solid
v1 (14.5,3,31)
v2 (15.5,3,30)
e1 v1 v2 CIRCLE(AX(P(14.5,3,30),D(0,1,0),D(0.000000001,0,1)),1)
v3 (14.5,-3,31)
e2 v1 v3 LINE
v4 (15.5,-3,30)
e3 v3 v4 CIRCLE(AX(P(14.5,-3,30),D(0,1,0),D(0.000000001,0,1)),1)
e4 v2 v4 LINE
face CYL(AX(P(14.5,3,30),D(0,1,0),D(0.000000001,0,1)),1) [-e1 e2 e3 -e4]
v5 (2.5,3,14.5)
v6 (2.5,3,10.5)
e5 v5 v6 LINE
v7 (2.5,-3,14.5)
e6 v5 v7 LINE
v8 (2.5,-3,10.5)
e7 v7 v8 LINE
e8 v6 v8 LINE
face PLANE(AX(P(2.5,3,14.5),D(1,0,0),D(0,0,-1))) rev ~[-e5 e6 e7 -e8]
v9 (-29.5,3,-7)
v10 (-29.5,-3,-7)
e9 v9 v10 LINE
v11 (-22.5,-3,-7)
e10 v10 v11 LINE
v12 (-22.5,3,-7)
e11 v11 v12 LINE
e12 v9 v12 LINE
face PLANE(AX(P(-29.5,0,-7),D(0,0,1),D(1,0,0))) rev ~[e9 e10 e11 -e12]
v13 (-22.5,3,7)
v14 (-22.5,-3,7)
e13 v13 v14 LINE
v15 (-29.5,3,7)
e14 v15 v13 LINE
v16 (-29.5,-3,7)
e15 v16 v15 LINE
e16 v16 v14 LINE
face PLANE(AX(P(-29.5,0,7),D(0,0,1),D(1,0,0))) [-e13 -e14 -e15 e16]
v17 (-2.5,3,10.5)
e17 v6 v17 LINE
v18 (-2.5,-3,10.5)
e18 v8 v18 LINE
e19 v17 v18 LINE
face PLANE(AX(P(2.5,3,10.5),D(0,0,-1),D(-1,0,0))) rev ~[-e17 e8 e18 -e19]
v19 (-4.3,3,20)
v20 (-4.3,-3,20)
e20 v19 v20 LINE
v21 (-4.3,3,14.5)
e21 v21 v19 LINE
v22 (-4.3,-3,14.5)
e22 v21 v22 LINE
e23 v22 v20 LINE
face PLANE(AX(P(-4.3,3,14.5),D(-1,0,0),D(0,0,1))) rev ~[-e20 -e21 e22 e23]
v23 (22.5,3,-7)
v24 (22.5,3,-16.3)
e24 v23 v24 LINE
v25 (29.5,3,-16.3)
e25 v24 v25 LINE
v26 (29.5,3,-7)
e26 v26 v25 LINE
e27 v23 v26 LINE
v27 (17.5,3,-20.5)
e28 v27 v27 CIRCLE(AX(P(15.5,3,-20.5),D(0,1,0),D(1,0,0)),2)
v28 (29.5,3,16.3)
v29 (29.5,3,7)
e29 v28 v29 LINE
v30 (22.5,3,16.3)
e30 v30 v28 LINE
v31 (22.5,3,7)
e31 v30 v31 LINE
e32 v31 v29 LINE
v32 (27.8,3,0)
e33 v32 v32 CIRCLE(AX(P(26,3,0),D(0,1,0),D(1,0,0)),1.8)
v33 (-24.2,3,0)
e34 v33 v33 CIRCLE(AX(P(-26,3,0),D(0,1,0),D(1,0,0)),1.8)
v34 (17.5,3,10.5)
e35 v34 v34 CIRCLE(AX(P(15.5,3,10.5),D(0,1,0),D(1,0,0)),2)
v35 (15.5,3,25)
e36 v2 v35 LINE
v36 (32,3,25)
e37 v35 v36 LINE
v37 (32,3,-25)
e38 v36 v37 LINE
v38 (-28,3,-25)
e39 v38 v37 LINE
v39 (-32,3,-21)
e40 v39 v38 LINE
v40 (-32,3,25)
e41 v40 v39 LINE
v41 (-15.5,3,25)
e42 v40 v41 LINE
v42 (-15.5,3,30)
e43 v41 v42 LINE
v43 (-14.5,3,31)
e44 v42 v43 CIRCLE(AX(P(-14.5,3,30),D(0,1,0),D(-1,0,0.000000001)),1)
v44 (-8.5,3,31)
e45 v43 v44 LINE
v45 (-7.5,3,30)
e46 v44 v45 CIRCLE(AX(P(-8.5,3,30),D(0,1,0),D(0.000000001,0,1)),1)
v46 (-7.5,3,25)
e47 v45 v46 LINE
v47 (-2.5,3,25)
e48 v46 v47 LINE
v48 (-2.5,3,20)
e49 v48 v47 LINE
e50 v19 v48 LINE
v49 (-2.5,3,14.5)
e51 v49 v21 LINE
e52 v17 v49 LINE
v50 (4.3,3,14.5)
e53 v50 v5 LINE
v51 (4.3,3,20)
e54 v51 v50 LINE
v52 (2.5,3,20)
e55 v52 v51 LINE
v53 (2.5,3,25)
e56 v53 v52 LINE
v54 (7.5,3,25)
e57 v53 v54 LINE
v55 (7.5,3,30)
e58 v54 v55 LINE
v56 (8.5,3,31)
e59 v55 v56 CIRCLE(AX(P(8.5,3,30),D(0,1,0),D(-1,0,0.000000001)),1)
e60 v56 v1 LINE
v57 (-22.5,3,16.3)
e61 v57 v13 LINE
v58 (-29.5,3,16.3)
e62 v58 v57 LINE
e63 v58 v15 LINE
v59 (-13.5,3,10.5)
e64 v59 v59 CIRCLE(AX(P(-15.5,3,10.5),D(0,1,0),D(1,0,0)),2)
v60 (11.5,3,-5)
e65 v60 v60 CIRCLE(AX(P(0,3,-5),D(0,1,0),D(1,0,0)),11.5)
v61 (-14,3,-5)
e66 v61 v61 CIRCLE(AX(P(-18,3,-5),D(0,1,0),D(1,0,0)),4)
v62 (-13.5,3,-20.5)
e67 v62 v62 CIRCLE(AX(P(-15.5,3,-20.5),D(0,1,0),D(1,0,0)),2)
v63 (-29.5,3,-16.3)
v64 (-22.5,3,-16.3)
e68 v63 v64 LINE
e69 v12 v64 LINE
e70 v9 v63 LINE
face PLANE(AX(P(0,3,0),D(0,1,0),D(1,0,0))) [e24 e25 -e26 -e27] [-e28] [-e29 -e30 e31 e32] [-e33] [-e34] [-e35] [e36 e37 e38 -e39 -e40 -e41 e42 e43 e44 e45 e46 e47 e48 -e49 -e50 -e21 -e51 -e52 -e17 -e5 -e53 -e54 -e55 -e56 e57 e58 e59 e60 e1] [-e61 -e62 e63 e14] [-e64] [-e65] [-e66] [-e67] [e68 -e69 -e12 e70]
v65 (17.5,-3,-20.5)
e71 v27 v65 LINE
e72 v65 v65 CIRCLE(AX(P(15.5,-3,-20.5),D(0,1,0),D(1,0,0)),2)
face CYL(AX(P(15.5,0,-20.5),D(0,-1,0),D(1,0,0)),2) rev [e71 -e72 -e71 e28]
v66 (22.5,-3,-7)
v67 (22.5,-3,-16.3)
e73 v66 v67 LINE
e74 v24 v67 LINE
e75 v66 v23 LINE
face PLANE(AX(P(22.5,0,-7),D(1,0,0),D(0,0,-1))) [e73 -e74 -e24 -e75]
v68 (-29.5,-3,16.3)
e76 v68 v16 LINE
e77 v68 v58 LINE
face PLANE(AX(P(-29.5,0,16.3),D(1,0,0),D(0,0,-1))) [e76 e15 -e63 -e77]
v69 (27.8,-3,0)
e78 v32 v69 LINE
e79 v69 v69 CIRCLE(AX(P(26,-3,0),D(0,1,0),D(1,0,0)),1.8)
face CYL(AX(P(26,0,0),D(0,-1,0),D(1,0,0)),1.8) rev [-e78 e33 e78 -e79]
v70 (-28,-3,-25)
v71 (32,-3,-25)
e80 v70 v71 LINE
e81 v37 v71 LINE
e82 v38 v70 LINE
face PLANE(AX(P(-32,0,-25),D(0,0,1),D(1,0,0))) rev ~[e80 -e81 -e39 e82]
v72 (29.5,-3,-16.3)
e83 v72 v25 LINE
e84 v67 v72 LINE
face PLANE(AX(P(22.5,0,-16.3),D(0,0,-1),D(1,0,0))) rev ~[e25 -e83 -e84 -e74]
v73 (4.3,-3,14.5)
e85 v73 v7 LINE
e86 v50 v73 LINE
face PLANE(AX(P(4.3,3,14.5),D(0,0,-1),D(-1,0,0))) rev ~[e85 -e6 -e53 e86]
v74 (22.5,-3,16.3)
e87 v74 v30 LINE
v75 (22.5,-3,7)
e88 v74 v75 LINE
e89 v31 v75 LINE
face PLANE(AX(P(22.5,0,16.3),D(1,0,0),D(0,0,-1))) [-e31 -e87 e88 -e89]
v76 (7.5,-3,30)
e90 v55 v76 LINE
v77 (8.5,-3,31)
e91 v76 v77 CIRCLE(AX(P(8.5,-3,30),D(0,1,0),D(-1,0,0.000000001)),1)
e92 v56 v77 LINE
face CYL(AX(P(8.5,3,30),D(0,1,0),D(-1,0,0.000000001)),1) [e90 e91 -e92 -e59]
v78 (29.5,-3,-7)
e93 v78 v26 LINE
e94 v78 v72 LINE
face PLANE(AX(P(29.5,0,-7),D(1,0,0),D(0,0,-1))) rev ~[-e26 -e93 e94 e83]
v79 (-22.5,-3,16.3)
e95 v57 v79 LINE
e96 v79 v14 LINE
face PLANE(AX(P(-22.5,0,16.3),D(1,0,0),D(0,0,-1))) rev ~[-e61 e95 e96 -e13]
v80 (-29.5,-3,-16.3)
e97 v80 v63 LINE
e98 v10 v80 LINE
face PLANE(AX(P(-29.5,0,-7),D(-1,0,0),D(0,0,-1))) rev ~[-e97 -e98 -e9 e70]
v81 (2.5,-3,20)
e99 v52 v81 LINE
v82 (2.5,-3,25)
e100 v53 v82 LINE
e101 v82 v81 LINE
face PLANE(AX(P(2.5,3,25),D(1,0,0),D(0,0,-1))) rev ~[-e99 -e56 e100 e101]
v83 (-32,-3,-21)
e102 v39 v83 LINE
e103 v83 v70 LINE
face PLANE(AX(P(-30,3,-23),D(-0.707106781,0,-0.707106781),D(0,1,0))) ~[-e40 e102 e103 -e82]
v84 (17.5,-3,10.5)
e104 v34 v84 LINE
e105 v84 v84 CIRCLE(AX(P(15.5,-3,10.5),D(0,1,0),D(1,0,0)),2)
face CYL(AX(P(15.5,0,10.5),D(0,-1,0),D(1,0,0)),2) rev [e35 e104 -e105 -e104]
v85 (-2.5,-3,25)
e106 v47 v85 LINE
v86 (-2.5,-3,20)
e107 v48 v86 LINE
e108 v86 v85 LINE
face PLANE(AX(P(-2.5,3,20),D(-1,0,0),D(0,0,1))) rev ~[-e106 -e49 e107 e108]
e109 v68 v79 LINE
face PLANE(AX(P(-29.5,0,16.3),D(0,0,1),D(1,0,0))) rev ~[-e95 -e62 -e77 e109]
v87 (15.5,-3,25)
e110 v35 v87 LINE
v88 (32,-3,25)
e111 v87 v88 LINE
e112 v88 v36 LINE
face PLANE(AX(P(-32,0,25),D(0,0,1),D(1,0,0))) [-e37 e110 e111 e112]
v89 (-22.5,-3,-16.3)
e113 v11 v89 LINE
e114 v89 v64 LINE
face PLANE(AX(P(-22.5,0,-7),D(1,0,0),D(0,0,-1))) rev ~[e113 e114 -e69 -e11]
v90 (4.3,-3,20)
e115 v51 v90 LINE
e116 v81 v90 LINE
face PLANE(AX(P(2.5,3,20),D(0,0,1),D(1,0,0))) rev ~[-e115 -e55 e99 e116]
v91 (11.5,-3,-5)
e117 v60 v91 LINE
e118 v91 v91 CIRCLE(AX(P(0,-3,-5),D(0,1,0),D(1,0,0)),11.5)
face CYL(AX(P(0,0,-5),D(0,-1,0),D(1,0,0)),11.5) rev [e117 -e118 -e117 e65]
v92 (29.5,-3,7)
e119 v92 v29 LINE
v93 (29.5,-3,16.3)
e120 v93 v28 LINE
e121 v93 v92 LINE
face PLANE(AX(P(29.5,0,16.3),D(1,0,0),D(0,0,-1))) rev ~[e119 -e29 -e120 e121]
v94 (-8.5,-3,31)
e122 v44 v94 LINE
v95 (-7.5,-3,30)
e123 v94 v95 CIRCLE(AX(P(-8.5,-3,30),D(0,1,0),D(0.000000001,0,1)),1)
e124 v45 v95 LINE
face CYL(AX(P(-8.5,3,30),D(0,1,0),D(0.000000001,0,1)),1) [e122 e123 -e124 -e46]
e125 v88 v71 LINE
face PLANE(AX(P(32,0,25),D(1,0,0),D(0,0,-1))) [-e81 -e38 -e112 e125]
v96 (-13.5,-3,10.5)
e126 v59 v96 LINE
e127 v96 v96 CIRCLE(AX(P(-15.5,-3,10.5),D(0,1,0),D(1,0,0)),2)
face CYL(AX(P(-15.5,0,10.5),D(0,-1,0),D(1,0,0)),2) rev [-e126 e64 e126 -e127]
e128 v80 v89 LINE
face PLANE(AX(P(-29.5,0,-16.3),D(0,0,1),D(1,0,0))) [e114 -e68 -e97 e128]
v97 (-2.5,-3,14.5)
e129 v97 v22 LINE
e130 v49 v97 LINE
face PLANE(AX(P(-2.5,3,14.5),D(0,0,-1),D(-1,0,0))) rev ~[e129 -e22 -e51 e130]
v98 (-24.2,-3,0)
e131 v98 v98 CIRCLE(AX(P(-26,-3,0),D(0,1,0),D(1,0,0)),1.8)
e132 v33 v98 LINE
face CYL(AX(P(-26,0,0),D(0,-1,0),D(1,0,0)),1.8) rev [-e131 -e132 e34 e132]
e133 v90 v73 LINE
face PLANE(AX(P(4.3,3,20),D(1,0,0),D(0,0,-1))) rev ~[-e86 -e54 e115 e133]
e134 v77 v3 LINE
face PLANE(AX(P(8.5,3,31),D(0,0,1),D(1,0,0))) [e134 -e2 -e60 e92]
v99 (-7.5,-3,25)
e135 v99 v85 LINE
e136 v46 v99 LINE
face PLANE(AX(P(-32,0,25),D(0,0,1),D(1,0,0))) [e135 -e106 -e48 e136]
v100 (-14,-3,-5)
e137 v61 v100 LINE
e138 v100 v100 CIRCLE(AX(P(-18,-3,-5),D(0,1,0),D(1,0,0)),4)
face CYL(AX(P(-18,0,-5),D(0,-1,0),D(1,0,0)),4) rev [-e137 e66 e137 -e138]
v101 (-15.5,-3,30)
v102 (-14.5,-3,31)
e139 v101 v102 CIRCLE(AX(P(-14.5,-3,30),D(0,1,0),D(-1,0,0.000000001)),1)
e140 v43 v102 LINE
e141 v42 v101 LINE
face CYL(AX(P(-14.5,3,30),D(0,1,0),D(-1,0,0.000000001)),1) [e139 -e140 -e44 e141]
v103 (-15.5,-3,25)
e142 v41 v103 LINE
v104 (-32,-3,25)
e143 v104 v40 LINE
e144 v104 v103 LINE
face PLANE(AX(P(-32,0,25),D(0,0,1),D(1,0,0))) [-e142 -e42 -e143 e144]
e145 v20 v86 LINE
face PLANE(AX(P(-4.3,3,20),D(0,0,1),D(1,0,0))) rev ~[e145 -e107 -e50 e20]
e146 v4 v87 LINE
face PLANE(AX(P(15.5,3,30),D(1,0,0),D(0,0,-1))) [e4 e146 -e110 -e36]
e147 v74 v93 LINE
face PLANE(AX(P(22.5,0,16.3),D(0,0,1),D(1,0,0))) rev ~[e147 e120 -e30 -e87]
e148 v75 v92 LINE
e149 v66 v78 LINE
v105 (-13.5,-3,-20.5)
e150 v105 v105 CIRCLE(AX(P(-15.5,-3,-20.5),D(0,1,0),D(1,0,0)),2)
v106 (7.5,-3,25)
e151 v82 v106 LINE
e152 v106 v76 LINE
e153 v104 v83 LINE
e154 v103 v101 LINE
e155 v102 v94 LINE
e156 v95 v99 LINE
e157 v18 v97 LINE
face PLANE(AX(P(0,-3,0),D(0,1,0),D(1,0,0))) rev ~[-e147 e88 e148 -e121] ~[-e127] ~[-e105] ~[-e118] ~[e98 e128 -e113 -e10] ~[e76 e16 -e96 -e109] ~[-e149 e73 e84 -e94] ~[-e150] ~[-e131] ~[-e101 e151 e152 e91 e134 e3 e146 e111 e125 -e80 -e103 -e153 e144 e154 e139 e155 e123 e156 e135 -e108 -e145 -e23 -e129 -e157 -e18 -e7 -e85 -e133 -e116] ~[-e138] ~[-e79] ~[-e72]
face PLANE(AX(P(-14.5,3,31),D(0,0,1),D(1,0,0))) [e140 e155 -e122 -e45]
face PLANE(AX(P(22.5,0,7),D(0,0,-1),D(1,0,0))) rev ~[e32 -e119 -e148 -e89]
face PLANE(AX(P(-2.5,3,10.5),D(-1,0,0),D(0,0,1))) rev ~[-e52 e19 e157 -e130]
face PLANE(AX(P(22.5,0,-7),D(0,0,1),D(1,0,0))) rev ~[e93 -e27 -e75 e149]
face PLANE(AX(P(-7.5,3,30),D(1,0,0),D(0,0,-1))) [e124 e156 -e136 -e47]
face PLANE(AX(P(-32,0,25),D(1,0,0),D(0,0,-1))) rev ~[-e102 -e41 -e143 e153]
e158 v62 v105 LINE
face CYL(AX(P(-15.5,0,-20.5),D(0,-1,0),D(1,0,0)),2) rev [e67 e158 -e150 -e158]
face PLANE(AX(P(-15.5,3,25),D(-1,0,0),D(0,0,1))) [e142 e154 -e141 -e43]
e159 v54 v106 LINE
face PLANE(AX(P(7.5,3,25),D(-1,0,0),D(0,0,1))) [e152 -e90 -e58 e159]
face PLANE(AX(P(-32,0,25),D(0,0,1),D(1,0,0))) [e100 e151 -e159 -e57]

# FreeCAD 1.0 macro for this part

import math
import FreeCAD as App
import Part
import Sketcher
from FreeCAD import Vector


def edges_at(feature, points):
    """Names of the edges that pass closest to the given points."""
    edges = feature.Shape.Edges
    near = lambda p: min(range(len(edges)), key=lambda i: edges[i].distToShape(Part.Vertex(*p))[0])
    return sorted({f"Edge{near(p) + 1}" for p in points})


def add_polygon(sketch, points):
    """Adds a closed chain of lines whose ends are joined by coincident constraints."""
    first, n = sketch.GeometryCount, len(points)
    for a, b in zip(points, points[1:] + points[:1]):
        sketch.addGeometry(Part.LineSegment(App.Vector(*a, 0), App.Vector(*b, 0)), False)
    for i in range(n):
        sketch.addConstraint(Sketcher.Constraint("Coincident", first + i, 2, first + (i + 1) % n, 1))

doc = App.newDocument("Part")
body = doc.addObject("PartDesign::Body", "Body")

sketch1 = body.newObject("Sketcher::SketchObject", "Sketch")
sketch1.AttachmentSupport = (doc.getObject("XZ_Plane"), [""])
sketch1.MapMode = "FlatFace"
add_polygon(sketch1, [(-32, -25), (-32, 25), (32, 25), (32, -25)])
add_polygon(sketch1, [(-22.5, 16.3), (-29.5, 16.3), (-29.5, 7), (-22.5, 7)])
sketch1.addGeometry(Part.Circle(Vector(-15.5, 10.5, 0), Vector(0, 0, 1), 2), False)
sketch1.addGeometry(Part.Circle(Vector(-26, 0, 0), Vector(0, 0, 1), 1.8), False)
add_polygon(sketch1, [(29.5, 16.3), (22.5, 16.3), (22.5, 7), (29.5, 7)])
sketch1.addGeometry(Part.Circle(Vector(15.5, 10.5, 0), Vector(0, 0, 1), 2), False)
sketch1.addGeometry(Part.Circle(Vector(26, 0, 0), Vector(0, 0, 1), 1.8), False)
sketch1.addGeometry(Part.Circle(Vector(-18, -5, 0), Vector(0, 0, 1), 4), False)
add_polygon(sketch1, [(-22.5, -7), (-29.5, -7), (-29.5, -16.3), (-22.5, -16.3)])
sketch1.addGeometry(Part.Circle(Vector(-15.5, -20.5, 0), Vector(0, 0, 1), 2), False)
sketch1.addGeometry(Part.Circle(Vector(0, -5, 0), Vector(0, 0, 1), 11.5), False)
add_polygon(sketch1, [(29.5, -7), (22.5, -7), (22.5, -16.3), (29.5, -16.3)])
sketch1.addGeometry(Part.Circle(Vector(15.5, -20.5, 0), Vector(0, 0, 1), 2), False)
sketch1.addConstraint([
    Sketcher.Constraint("Vertical", 0),
    Sketcher.Constraint("Horizontal", 1),
    Sketcher.Constraint("Vertical", 2),
    Sketcher.Constraint("Horizontal", 3),
    Sketcher.Constraint("Horizontal", 4),
    Sketcher.Constraint("Vertical", 5),
    Sketcher.Constraint("Horizontal", 6),
    Sketcher.Constraint("Vertical", 7),
    Sketcher.Constraint("Horizontal", 10),
    Sketcher.Constraint("Vertical", 11),
    Sketcher.Constraint("Horizontal", 12),
    Sketcher.Constraint("Vertical", 13),
    Sketcher.Constraint("Horizontal", 17),
    Sketcher.Constraint("Vertical", 18),
    Sketcher.Constraint("Horizontal", 19),
    Sketcher.Constraint("Vertical", 20),
    Sketcher.Constraint("Horizontal", 23),
    Sketcher.Constraint("Vertical", 24),
    Sketcher.Constraint("Horizontal", 25),
    Sketcher.Constraint("Vertical", 26),
    Sketcher.Constraint("Equal", 8, 14),
    Sketcher.Constraint("Equal", 9, 15),
    Sketcher.Constraint("Equal", 14, 21),
    Sketcher.Constraint("Equal", 21, 27),
    Sketcher.Constraint("Symmetric", 9, 3, 15, 3, -1, 1),
    Sketcher.Constraint("Symmetric", 0, 2, 2, 2, -1, 1),
    Sketcher.Constraint("Symmetric", 12, 2, 17, 2, -1, 1),
    Sketcher.Constraint("Symmetric", 10, 2, 19, 2, -1, 1),
    Sketcher.Constraint("Symmetric", 6, 2, 23, 2, -1, 1),
    Sketcher.Constraint("Symmetric", 4, 2, 25, 2, -1, 1),
    Sketcher.Constraint("Symmetric", 8, 3, 14, 3, -2),
    Sketcher.Constraint("Symmetric", 21, 3, 27, 3, -2),
    Sketcher.Constraint("Symmetric", 7, 2, 10, 2, -2),
    Sketcher.Constraint("Symmetric", 5, 2, 12, 2, -2),
    Sketcher.Constraint("PointOnObject", 9, 3, -1),
    Sketcher.Constraint("PointOnObject", 22, 3, -2),
    Sketcher.Constraint("Horizontal", 16, 3, 22, 3),
    Sketcher.Constraint("Vertical", 8, 3, 21, 3),
    Sketcher.Constraint("Diameter", 8, 4.0),
    Sketcher.Constraint("Diameter", 16, 8.0),
    Sketcher.Constraint("Diameter", 22, 23.0),
    Sketcher.Constraint("Diameter", 9, 3.6),
    Sketcher.Constraint("DistanceX", 1, 1, 1, 2, 64.0),
    Sketcher.Constraint("DistanceX", 4, 2, 4, 1, 7.0),
    Sketcher.Constraint("DistanceY", 0, 1, 0, 2, 50.0),
    Sketcher.Constraint("DistanceY", 5, 2, 5, 1, 9.3),
    Sketcher.Constraint("DistanceX", 9, 3, -1, 1, 26.0),
    Sketcher.Constraint("DistanceX", 16, 3, -1, 1, 18.0),
    Sketcher.Constraint("DistanceY", 16, 3, -1, 1, 5.0),
    Sketcher.Constraint("DistanceY", -1, 1, 5, 2, 7.0),
    Sketcher.Constraint("DistanceX", 8, 3, 14, 3, 31.0),
    Sketcher.Constraint("DistanceY", 21, 3, 8, 3, 31.0),
    Sketcher.Constraint("DistanceX", 4, 2, 8, 3, 14.0),
    Sketcher.Constraint("DistanceY", -1, 1, 8, 3, 10.5),
])
pad1 = body.newObject("PartDesign::Pad", "Pad")
pad1.Profile = sketch1
pad1.Length = 6
pad1.Midplane = True

sketch2 = body.newObject("Sketcher::SketchObject", "Sketch001")
sketch2.AttachmentSupport = (doc.getObject("XZ_Plane"), [""])
sketch2.MapMode = "FlatFace"
sketch2.AttachmentOffset = App.Placement(Vector(0, 0, -3), App.Rotation())
sketch2.addGeometry([
    Part.LineSegment(Vector(-7.5, 30, 0), Vector(-7.5, 25, 0)),
    Part.LineSegment(Vector(-7.5, 25, 0), Vector(-15.5, 25, 0)),
    Part.LineSegment(Vector(-15.5, 25, 0), Vector(-15.5, 30, 0)),
    Part.ArcOfCircle(Part.Circle(Vector(-14.5, 30, 0), Vector(0, 0, 1), 1), math.radians(90), math.radians(180)),
    Part.LineSegment(Vector(-14.5, 31, 0), Vector(-8.5, 31, 0)),
    Part.ArcOfCircle(Part.Circle(Vector(-8.5, 30, 0), Vector(0, 0, 1), 1), math.radians(0), math.radians(90)),
    Part.LineSegment(Vector(15.5, 30, 0), Vector(15.5, 25, 0)),
    Part.LineSegment(Vector(15.5, 25, 0), Vector(7.5, 25, 0)),
    Part.LineSegment(Vector(7.5, 25, 0), Vector(7.5, 30, 0)),
    Part.ArcOfCircle(Part.Circle(Vector(8.5, 30, 0), Vector(0, 0, 1), 1), math.radians(90), math.radians(180)),
    Part.LineSegment(Vector(8.5, 31, 0), Vector(14.5, 31, 0)),
    Part.ArcOfCircle(Part.Circle(Vector(14.5, 30, 0), Vector(0, 0, 1), 1), math.radians(0), math.radians(90)),
], False)
sketch2.addConstraint([
    Sketcher.Constraint("Coincident", 0, 2, 1, 1),
    Sketcher.Constraint("Coincident", 1, 2, 2, 1),
    Sketcher.Constraint("Tangent", 2, 2, 3, 2),
    Sketcher.Constraint("Tangent", 3, 1, 4, 1),
    Sketcher.Constraint("Tangent", 4, 2, 5, 2),
    Sketcher.Constraint("Tangent", 5, 1, 0, 1),
    Sketcher.Constraint("Coincident", 6, 2, 7, 1),
    Sketcher.Constraint("Coincident", 7, 2, 8, 1),
    Sketcher.Constraint("Tangent", 8, 2, 9, 2),
    Sketcher.Constraint("Tangent", 9, 1, 10, 1),
    Sketcher.Constraint("Tangent", 10, 2, 11, 2),
    Sketcher.Constraint("Tangent", 11, 1, 6, 1),
    Sketcher.Constraint("Vertical", 0),
    Sketcher.Constraint("Horizontal", 1),
    Sketcher.Constraint("Vertical", 2),
    Sketcher.Constraint("Horizontal", 4),
    Sketcher.Constraint("Vertical", 6),
    Sketcher.Constraint("Horizontal", 7),
    Sketcher.Constraint("Vertical", 8),
    Sketcher.Constraint("Horizontal", 10),
    Sketcher.Constraint("Equal", 3, 5),
    Sketcher.Constraint("Equal", 5, 9),
    Sketcher.Constraint("Equal", 9, 11),
    Sketcher.Constraint("Symmetric", 5, 3, 9, 3, -2),
    Sketcher.Constraint("Symmetric", 1, 2, 6, 2, -2),
    Sketcher.Constraint("Radius", 3, 1.0),
    Sketcher.Constraint("DistanceX", 1, 2, 1, 1, 8.0),
    Sketcher.Constraint("DistanceY", 0, 2, 0, 1, 5.0),
    Sketcher.Constraint("DistanceY", -1, 1, 3, 3, 30.0),
    Sketcher.Constraint("DistanceX", 5, 3, 9, 3, 17.0),
])
pad2 = body.newObject("PartDesign::Pad", "Pad001")
pad2.Profile = sketch2
pad2.Length = 6

sketch3 = body.newObject("Sketcher::SketchObject", "Sketch002")
sketch3.AttachmentSupport = (doc.getObject("XZ_Plane"), [""])
sketch3.MapMode = "FlatFace"
sketch3.AttachmentOffset = App.Placement(Vector(0, 0, -3), App.Rotation())
add_polygon(sketch3, [(-2.5, 25), (2.5, 25), (2.5, 20), (4.3, 20), (4.3, 14.5), (2.5, 14.5), (2.5, 10.5), (-2.5, 10.5), (-2.5, 14.5), (-4.3, 14.5), (-4.3, 20), (-2.5, 20)])
sketch3.addConstraint([
    Sketcher.Constraint("Horizontal", 0),
    Sketcher.Constraint("Vertical", 1),
    Sketcher.Constraint("Horizontal", 2),
    Sketcher.Constraint("Vertical", 3),
    Sketcher.Constraint("Horizontal", 4),
    Sketcher.Constraint("Vertical", 5),
    Sketcher.Constraint("Horizontal", 6),
    Sketcher.Constraint("Vertical", 7),
    Sketcher.Constraint("Horizontal", 8),
    Sketcher.Constraint("Vertical", 9),
    Sketcher.Constraint("Horizontal", 10),
    Sketcher.Constraint("Vertical", 11),
    Sketcher.Constraint("Symmetric", 4, 2, 7, 2, -2),
    Sketcher.Constraint("Symmetric", 2, 2, 9, 2, -2),
    Sketcher.Constraint("Vertical", 1, 2, 4, 2),
    Sketcher.Constraint("Vertical", 7, 2, 10, 2),
    Sketcher.Constraint("Equal", 6, 1),
    Sketcher.Constraint("DistanceX", 0, 1, 0, 2, 5.0),
    Sketcher.Constraint("DistanceY", 5, 2, 5, 1, 4.0),
    Sketcher.Constraint("DistanceX", 2, 1, 2, 2, 1.8),
    Sketcher.Constraint("DistanceY", 3, 2, 3, 1, 5.5),
    Sketcher.Constraint("DistanceY", -1, 1, 0, 2, 25.0),
])
pocket1 = body.newObject("PartDesign::Pocket", "Pocket")
pocket1.Profile = sketch3
pocket1.Length = 6
pocket1.Reversed = True
doc.recompute()

chamfer = body.newObject("PartDesign::Chamfer", "Chamfer")
chamfer.Base = (pocket1, edges_at(pocket1, [(-32, 0, -25)]))
chamfer.Size = 4

doc.recompute()
